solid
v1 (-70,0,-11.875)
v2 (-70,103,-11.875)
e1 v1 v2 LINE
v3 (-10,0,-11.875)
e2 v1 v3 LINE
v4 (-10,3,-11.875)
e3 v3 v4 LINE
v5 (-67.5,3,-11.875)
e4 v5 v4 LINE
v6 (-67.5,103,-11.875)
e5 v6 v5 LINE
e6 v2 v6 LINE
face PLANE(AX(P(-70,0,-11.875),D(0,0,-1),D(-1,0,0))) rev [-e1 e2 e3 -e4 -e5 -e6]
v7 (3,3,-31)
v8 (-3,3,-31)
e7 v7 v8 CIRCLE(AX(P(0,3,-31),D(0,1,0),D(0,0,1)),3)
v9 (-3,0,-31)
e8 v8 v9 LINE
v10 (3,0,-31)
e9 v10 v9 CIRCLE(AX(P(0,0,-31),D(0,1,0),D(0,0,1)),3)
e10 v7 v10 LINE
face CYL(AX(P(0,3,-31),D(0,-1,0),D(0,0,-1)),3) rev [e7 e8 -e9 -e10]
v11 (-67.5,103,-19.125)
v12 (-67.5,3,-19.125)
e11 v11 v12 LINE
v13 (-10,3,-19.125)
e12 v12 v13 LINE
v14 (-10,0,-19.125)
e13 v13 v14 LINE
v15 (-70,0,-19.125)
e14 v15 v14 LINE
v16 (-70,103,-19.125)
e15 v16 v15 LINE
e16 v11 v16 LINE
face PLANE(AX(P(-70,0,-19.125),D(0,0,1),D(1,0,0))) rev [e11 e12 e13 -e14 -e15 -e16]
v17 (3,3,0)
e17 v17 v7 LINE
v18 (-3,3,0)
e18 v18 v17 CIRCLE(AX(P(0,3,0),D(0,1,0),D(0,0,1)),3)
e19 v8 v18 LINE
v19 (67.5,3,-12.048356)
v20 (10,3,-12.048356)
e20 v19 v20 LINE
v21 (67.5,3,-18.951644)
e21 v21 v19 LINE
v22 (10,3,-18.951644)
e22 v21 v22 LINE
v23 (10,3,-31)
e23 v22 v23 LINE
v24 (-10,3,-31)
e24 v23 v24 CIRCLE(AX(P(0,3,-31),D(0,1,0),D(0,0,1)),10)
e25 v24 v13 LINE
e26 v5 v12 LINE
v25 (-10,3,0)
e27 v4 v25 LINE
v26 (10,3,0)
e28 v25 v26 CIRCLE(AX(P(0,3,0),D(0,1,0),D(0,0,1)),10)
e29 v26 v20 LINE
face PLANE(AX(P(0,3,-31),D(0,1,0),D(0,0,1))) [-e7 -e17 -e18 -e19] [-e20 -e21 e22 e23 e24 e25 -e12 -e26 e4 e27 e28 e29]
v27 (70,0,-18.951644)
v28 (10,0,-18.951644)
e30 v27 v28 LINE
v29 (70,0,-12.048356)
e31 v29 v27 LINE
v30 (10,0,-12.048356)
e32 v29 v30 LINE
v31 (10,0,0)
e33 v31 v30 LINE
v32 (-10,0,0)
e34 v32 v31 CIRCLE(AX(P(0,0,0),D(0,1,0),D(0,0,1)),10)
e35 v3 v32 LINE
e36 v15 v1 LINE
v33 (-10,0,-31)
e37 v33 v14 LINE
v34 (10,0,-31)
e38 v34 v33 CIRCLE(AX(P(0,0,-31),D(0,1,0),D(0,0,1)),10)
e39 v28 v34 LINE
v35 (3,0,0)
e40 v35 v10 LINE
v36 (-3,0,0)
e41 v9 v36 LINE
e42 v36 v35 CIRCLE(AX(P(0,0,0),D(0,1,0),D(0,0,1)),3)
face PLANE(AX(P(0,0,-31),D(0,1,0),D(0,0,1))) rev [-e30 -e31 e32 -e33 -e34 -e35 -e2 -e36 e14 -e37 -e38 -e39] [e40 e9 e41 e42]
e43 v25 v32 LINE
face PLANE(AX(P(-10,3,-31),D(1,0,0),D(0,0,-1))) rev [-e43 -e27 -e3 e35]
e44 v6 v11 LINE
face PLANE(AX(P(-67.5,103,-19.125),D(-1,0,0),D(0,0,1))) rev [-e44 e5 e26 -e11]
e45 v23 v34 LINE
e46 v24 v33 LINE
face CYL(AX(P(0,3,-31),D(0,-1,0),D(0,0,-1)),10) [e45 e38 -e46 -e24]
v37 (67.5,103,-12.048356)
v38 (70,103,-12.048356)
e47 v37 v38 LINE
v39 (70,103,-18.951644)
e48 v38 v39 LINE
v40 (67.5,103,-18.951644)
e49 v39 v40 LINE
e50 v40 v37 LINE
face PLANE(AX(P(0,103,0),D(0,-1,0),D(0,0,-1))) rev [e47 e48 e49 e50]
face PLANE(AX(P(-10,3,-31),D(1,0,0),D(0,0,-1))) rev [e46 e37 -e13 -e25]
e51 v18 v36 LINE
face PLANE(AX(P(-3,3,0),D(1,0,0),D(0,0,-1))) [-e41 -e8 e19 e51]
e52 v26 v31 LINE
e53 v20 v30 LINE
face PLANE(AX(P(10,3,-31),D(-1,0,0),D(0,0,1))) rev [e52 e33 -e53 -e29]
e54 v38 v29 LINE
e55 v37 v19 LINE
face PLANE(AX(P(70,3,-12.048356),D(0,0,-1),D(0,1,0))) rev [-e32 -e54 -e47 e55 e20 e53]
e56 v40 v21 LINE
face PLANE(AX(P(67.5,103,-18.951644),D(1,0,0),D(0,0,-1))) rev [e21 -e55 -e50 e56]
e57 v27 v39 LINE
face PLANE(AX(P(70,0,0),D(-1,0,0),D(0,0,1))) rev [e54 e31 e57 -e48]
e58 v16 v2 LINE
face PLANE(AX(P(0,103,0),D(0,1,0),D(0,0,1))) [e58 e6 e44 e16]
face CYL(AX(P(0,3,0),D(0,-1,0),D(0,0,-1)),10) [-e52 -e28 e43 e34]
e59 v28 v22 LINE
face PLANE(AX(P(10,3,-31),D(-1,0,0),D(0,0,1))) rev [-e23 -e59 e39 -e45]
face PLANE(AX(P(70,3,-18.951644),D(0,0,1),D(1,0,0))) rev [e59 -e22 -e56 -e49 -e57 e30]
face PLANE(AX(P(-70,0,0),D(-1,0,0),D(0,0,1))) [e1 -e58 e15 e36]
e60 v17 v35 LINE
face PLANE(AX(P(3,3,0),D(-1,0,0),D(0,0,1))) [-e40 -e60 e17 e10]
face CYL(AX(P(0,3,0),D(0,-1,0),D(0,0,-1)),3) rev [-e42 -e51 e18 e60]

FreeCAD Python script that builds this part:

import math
import FreeCAD as App
import Part
import Sketcher
Q = App.Units.Quantity

doc = App.newDocument("Part")
params = doc.addObject("Spreadsheet::Sheet", "Params")
for row, (alias, value) in enumerate([
    ("sketch1_radius", "10 mm"),
    ("sketch1_radius2", "3 mm"),
    ("sketch1_height", "31 mm"),
    ("pad1_length", "3 mm"),
    ("sketch2_width", "3 mm"),
    ("pad2_length", "60 mm"),
    ("sketch3_width", "3 mm"),
    ("sketch3_height", "7.25 mm"),
    ("pad3_length", "60 mm"),
    ("sketch4_width", "2.5 mm"),
    ("sketch4_height", "7.25 mm"),
    ("pad4_length", "100 mm"),
], start=1):
    params.set(f"A{row}", alias)
    params.set(f"B{row}", "=" + value)
    params.setAlias(f"B{row}", alias)

body = doc.addObject("PartDesign::Body", "Body")

sketch1 = doc.addObject("Sketcher::SketchObject", "Sketch")
body.addObject(sketch1)
sketch1.AttachmentSupport = (doc.XZ_Plane, [""])
sketch1.MapMode = "FlatFace"
sketch1.addGeometry(Part.LineSegment(App.Vector(10, 0, 0), App.Vector(10, -31, 0)), False)
sketch1.addGeometry(Part.ArcOfCircle(Part.Circle(App.Vector(0, -31, 0), App.Vector(0, 0, 1), 10), math.radians(180), math.radians(360)), False)
sketch1.addGeometry(Part.LineSegment(App.Vector(-10, -31, 0), App.Vector(-10, 0, 0)), False)
sketch1.addGeometry(Part.ArcOfCircle(Part.Circle(App.Vector(0, 0, 0), App.Vector(0, 0, 1), 10), math.radians(0), math.radians(180)), False)
sketch1.addGeometry(Part.LineSegment(App.Vector(-3, 0, 0), App.Vector(-3, -31, 0)), False)
sketch1.addGeometry(Part.ArcOfCircle(Part.Circle(App.Vector(0, -31, 0), App.Vector(0, 0, 1), 3), math.radians(180), math.radians(360)), False)
sketch1.addGeometry(Part.LineSegment(App.Vector(3, -31, 0), App.Vector(3, 0, 0)), False)
sketch1.addGeometry(Part.ArcOfCircle(Part.Circle(App.Vector(0, 0, 0), App.Vector(0, 0, 1), 3), math.radians(0), math.radians(180)), False)
sketch1.addConstraint(Sketcher.Constraint("Tangent", 0, 2, 1, 2))
sketch1.addConstraint(Sketcher.Constraint("Tangent", 1, 1, 2, 1))
sketch1.addConstraint(Sketcher.Constraint("Tangent", 2, 2, 3, 2))
sketch1.addConstraint(Sketcher.Constraint("Tangent", 3, 1, 0, 1))
sketch1.addConstraint(Sketcher.Constraint("Tangent", 4, 2, 5, 1))
sketch1.addConstraint(Sketcher.Constraint("Tangent", 5, 2, 6, 1))
sketch1.addConstraint(Sketcher.Constraint("Tangent", 6, 2, 7, 1))
sketch1.addConstraint(Sketcher.Constraint("Tangent", 7, 2, 4, 1))
sketch1.addConstraint(Sketcher.Constraint("Vertical", 0))
sketch1.addConstraint(Sketcher.Constraint("Vertical", 2))
sketch1.addConstraint(Sketcher.Constraint("Vertical", 4))
sketch1.addConstraint(Sketcher.Constraint("Vertical", 6))
sketch1.addConstraint(Sketcher.Constraint("Coincident", 3, 3, -1, 1))
sketch1.addConstraint(Sketcher.Constraint("Coincident", 7, 3, -1, 1))
sketch1.addConstraint(Sketcher.Constraint("Horizontal", 5, 3, 0, 2))
sketch1.addConstraint(Sketcher.Constraint("Radius", 1, Q("10 mm")))
sketch1.addConstraint(Sketcher.Constraint("Radius", 5, Q("3 mm")))
sketch1.addConstraint(Sketcher.Constraint("DistanceY", 0, 2, 0, 1, Q("31 mm")))
sketch1.setExpression("Constraints[15]", "Params.sketch1_radius")
sketch1.setExpression("Constraints[16]", "Params.sketch1_radius2")
sketch1.setExpression("Constraints[17]", "Params.sketch1_height")
pad1 = doc.addObject("PartDesign::Pad", "Pad")
body.addObject(pad1)
pad1.Profile = sketch1
pad1.setExpression("Length", "Params.pad1_length")
pad1.Reversed = True

sketch2 = doc.addObject("Sketcher::SketchObject", "Sketch001")
body.addObject(sketch2)
sketch2.AttachmentSupport = (doc.YZ_Plane, [""])
sketch2.MapMode = "FlatFace"
sketch2.AttachmentOffset = App.Placement(App.Vector(0, 0, 10), App.Rotation())
sketch2.addGeometry(Part.LineSegment(App.Vector(3, -12, 0), App.Vector(0, -12, 0)), False)
sketch2.addGeometry(Part.LineSegment(App.Vector(0, -12, 0), App.Vector(0, -19, 0)), False)
sketch2.addGeometry(Part.LineSegment(App.Vector(0, -19, 0), App.Vector(3, -19, 0)), False)
sketch2.addGeometry(Part.LineSegment(App.Vector(3, -19, 0), App.Vector(3, -12, 0)), False)
sketch2.addConstraint(Sketcher.Constraint("Coincident", 0, 2, 1, 1))
sketch2.addConstraint(Sketcher.Constraint("Coincident", 1, 2, 2, 1))
sketch2.addConstraint(Sketcher.Constraint("Coincident", 2, 2, 3, 1))
sketch2.addConstraint(Sketcher.Constraint("Coincident", 3, 2, 0, 1))
sketch2.addConstraint(Sketcher.Constraint("Horizontal", 0))
sketch2.addConstraint(Sketcher.Constraint("Vertical", 1))
sketch2.addConstraint(Sketcher.Constraint("Horizontal", 2))
sketch2.addConstraint(Sketcher.Constraint("Vertical", 3))
sketch2.addConstraint(Sketcher.Constraint("PointOnObject", 0, 2, -2))
sketch2.addConstraint(Sketcher.Constraint("DistanceX", 0, 2, 0, 1, Q("3 mm")))
sketch2.addConstraint(Sketcher.Constraint("DistanceY", 1, 2, 1, 1, Q("6.903287 mm")))
sketch2.addConstraint(Sketcher.Constraint("DistanceY", 0, 2, -1, 1, Q("12.048356 mm")))
sketch2.setExpression("Constraints[9]", "Params.sketch2_width")
pad2 = doc.addObject("PartDesign::Pad", "Pad001")
body.addObject(pad2)
pad2.Profile = sketch2
pad2.setExpression("Length", "Params.pad2_length")

sketch3 = doc.addObject("Sketcher::SketchObject", "Sketch002")
body.addObject(sketch3)
sketch3.AttachmentSupport = (doc.YZ_Plane, [""])
sketch3.MapMode = "FlatFace"
sketch3.AttachmentOffset = App.Placement(App.Vector(0, 0, -10), App.Rotation())
sketch3.addGeometry(Part.LineSegment(App.Vector(3, -19.1, 0), App.Vector(0, -19.1, 0)), False)
sketch3.addGeometry(Part.LineSegment(App.Vector(0, -19.1, 0), App.Vector(0, -11.9, 0)), False)
sketch3.addGeometry(Part.LineSegment(App.Vector(0, -11.9, 0), App.Vector(3, -11.9, 0)), False)
sketch3.addGeometry(Part.LineSegment(App.Vector(3, -11.9, 0), App.Vector(3, -19.1, 0)), False)
sketch3.addConstraint(Sketcher.Constraint("Coincident", 0, 2, 1, 1))
sketch3.addConstraint(Sketcher.Constraint("Coincident", 1, 2, 2, 1))
sketch3.addConstraint(Sketcher.Constraint("Coincident", 2, 2, 3, 1))
sketch3.addConstraint(Sketcher.Constraint("Coincident", 3, 2, 0, 1))
sketch3.addConstraint(Sketcher.Constraint("Horizontal", 0))
sketch3.addConstraint(Sketcher.Constraint("Vertical", 1))
sketch3.addConstraint(Sketcher.Constraint("Horizontal", 2))
sketch3.addConstraint(Sketcher.Constraint("Vertical", 3))
sketch3.addConstraint(Sketcher.Constraint("PointOnObject", 0, 2, -2))
sketch3.addConstraint(Sketcher.Constraint("DistanceX", 0, 2, 0, 1, Q("3 mm")))
sketch3.addConstraint(Sketcher.Constraint("DistanceY", 1, 1, 1, 2, Q("7.25 mm")))
sketch3.addConstraint(Sketcher.Constraint("DistanceY", 0, 2, -1, 1, Q("19.125 mm")))
sketch3.setExpression("Constraints[9]", "Params.sketch3_width")
sketch3.setExpression("Constraints[10]", "Params.sketch3_height")
pad3 = doc.addObject("PartDesign::Pad", "Pad002")
body.addObject(pad3)
pad3.Profile = sketch3
pad3.setExpression("Length", "Params.pad3_length")
pad3.Reversed = True

sketch4 = doc.addObject("Sketcher::SketchObject", "Sketch003")
body.addObject(sketch4)
sketch4.AttachmentSupport = (doc.XZ_Plane, [""])
sketch4.MapMode = "FlatFace"
sketch4.AttachmentOffset = App.Placement(App.Vector(0, 0, -3), App.Rotation())
sketch4.addGeometry(Part.LineSegment(App.Vector(67.5, -19, 0), App.Vector(67.5, -12, 0)), False)
sketch4.addGeometry(Part.LineSegment(App.Vector(67.5, -12, 0), App.Vector(70, -12, 0)), False)
sketch4.addGeometry(Part.LineSegment(App.Vector(70, -12, 0), App.Vector(70, -19, 0)), False)
sketch4.addGeometry(Part.LineSegment(App.Vector(70, -19, 0), App.Vector(67.5, -19, 0)), False)
sketch4.addGeometry(Part.LineSegment(App.Vector(-70, -19.1, 0), App.Vector(-70, -11.9, 0)), False)
sketch4.addGeometry(Part.LineSegment(App.Vector(-70, -11.9, 0), App.Vector(-67.5, -11.9, 0)), False)
sketch4.addGeometry(Part.LineSegment(App.Vector(-67.5, -11.9, 0), App.Vector(-67.5, -19.1, 0)), False)
sketch4.addGeometry(Part.LineSegment(App.Vector(-67.5, -19.1, 0), App.Vector(-70, -19.1, 0)), False)
sketch4.addConstraint(Sketcher.Constraint("Coincident", 0, 2, 1, 1))
sketch4.addConstraint(Sketcher.Constraint("Coincident", 1, 2, 2, 1))
sketch4.addConstraint(Sketcher.Constraint("Coincident", 2, 2, 3, 1))
sketch4.addConstraint(Sketcher.Constraint("Coincident", 3, 2, 0, 1))
sketch4.addConstraint(Sketcher.Constraint("Coincident", 4, 2, 5, 1))
sketch4.addConstraint(Sketcher.Constraint("Coincident", 5, 2, 6, 1))
sketch4.addConstraint(Sketcher.Constraint("Coincident", 6, 2, 7, 1))
sketch4.addConstraint(Sketcher.Constraint("Coincident", 7, 2, 4, 1))
sketch4.addConstraint(Sketcher.Constraint("Vertical", 0))
sketch4.addConstraint(Sketcher.Constraint("Horizontal", 1))
sketch4.addConstraint(Sketcher.Constraint("Vertical", 2))
sketch4.addConstraint(Sketcher.Constraint("Horizontal", 3))
sketch4.addConstraint(Sketcher.Constraint("Vertical", 4))
sketch4.addConstraint(Sketcher.Constraint("Horizontal", 5))
sketch4.addConstraint(Sketcher.Constraint("Vertical", 6))
sketch4.addConstraint(Sketcher.Constraint("Horizontal", 7))
sketch4.addConstraint(Sketcher.Constraint("Equal", 3, 5))
sketch4.addConstraint(Sketcher.Constraint("DistanceX", 1, 1, 1, 2, Q("2.5 mm")))
sketch4.addConstraint(Sketcher.Constraint("DistanceX", -1, 1, 1, 2, Q("70 mm")))
sketch4.addConstraint(Sketcher.Constraint("DistanceX", 4, 2, -1, 1, Q("70 mm")))
sketch4.addConstraint(Sketcher.Constraint("DistanceY", 4, 1, 4, 2, Q("7.25 mm")))
sketch4.addConstraint(Sketcher.Constraint("DistanceY", 4, 2, -1, 1, Q("11.875 mm")))
sketch4.addConstraint(Sketcher.Constraint("DistanceY", 0, 1, 0, 2, Q("6.903287 mm")))
sketch4.addConstraint(Sketcher.Constraint("DistanceY", 0, 2, -1, 1, Q("12.048356 mm")))
sketch4.setExpression("Constraints[17]", "Params.sketch4_width")
sketch4.setExpression("Constraints[20]", "Params.sketch4_height")
pad4 = doc.addObject("PartDesign::Pad", "Pad003")
body.addObject(pad4)
pad4.Profile = sketch4
pad4.setExpression("Length", "Params.pad4_length")
pad4.Reversed = True

doc.recompute()
